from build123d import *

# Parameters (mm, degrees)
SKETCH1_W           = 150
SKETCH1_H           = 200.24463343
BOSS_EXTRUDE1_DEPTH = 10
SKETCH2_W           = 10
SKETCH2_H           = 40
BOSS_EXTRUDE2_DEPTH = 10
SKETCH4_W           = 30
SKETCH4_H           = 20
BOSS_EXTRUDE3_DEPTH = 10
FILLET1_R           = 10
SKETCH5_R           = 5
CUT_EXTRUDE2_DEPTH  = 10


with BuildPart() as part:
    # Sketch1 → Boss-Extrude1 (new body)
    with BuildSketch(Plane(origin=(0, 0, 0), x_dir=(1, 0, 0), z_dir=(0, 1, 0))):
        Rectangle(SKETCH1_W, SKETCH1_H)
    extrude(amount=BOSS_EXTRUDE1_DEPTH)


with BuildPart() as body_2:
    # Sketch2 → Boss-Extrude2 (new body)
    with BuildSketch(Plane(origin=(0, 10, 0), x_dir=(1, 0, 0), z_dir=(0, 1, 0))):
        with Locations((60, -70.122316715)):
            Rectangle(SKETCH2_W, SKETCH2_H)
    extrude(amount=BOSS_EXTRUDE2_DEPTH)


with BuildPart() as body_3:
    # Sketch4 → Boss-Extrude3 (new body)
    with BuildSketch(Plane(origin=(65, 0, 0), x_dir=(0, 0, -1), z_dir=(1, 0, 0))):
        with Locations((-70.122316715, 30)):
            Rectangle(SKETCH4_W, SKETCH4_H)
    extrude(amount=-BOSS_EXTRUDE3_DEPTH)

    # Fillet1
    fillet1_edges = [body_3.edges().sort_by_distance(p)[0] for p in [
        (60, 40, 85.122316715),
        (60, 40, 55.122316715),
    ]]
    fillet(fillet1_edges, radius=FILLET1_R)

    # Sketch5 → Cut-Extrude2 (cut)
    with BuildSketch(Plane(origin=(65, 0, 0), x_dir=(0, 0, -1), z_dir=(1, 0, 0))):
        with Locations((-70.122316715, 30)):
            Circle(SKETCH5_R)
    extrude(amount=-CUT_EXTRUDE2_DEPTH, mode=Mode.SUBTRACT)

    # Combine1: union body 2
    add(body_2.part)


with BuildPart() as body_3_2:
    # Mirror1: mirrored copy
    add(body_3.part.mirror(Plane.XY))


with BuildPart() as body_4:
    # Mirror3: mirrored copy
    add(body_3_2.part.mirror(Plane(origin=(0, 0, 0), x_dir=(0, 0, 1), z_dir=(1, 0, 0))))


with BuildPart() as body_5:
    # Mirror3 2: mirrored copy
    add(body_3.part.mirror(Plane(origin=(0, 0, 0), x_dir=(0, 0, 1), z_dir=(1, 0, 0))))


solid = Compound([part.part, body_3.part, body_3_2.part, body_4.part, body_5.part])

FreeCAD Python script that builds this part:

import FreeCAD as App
import Part
import Sketcher
from FreeCAD import Vector
Q = App.Units.Quantity


def edges_at(feature, points):
    """Names of the edges that pass closest to the given points."""
    edges = feature.Shape.Edges
    near = lambda p: min(range(len(edges)), key=lambda i: edges[i].distToShape(Part.Vertex(*p))[0])
    return sorted({f"Edge{near(p) + 1}" for p in points})

doc = App.newDocument("Part")
params = doc.addObject("Spreadsheet::Sheet", "Params")
for row, (alias, value) in enumerate([
    ("sketch1_width", "150 mm"),
    ("pad1_length", "10 mm"),
    ("sketch2_width", "10 mm"),
    ("sketch2_height", "40 mm"),
    ("pad2_length", "10 mm"),
    ("sketch3_width", "20 mm"),
    ("sketch3_height", "30 mm"),
    ("pad3_length", "10 mm"),
    ("fillet_radius", "10 mm"),
    ("sketch4_diameter", "10 mm"),
    ("pocket1_length", "10 mm"),
], start=1):
    params.set(f"A{row}", alias)
    params.set(f"B{row}", "=" + value)
    params.setAlias(f"B{row}", alias)

body = doc.addObject("PartDesign::Body", "Body")

# Sketch on XZ plane
sketch1 = body.newObject("Sketcher::SketchObject", "Sketch")
sketch1.AttachmentSupport = (doc.getObject("XZ_Plane"), [""])
sketch1.MapMode = "FlatFace"
sketch1.addGeometry([
    Part.LineSegment(Vector(-75, -100.122317, 0), Vector(-75, 100.122317, 0)),
    Part.LineSegment(Vector(-75, 100.122317, 0), Vector(75, 100.122317, 0)),
    Part.LineSegment(Vector(75, 100.122317, 0), Vector(75, -100.122317, 0)),
    Part.LineSegment(Vector(75, -100.122317, 0), Vector(-75, -100.122317, 0)),
], False)
sketch1.addConstraint([
    Sketcher.Constraint("Coincident", 0, 2, 1, 1),
    Sketcher.Constraint("Coincident", 1, 2, 2, 1),
    Sketcher.Constraint("Coincident", 2, 2, 3, 1),
    Sketcher.Constraint("Coincident", 3, 2, 0, 1),
    Sketcher.Constraint("Vertical", 0),
    Sketcher.Constraint("Horizontal", 1),
    Sketcher.Constraint("Vertical", 2),
    Sketcher.Constraint("Horizontal", 3),
    Sketcher.Constraint("Symmetric", 0, 2, 2, 2, -1, 1),
    Sketcher.Constraint("DistanceX", 1, 1, 1, 2, Q("150 mm")),
    Sketcher.Constraint("DistanceY", 0, 1, 0, 2, Q("200.244633 mm")),
])
sketch1.setExpression("Constraints[9]", "Params.sketch1_width")
pad1 = body.newObject("PartDesign::Pad", "Pad")
pad1.Profile = sketch1
pad1.setExpression("Length", "Params.pad1_length")
pad1.Reversed = True
body2 = doc.addObject("PartDesign::Body", "Body001")

# Sketch on XZ plane
sketch2 = body2.newObject("Sketcher::SketchObject", "Sketch001")
sketch2.AttachmentSupport = (doc.getObject("XZ_Plane001"), [""])
sketch2.MapMode = "FlatFace"
sketch2.AttachmentOffset = App.Placement(Vector(0, 0, -10), App.Rotation())
sketch2.addGeometry([
    Part.LineSegment(Vector(55, 50.122317, 0), Vector(55, 90.122317, 0)),
    Part.LineSegment(Vector(55, 90.122317, 0), Vector(65, 90.122317, 0)),
    Part.LineSegment(Vector(65, 90.122317, 0), Vector(65, 50.122317, 0)),
    Part.LineSegment(Vector(65, 50.122317, 0), Vector(55, 50.122317, 0)),
], False)
sketch2.addConstraint([
    Sketcher.Constraint("Coincident", 0, 2, 1, 1),
    Sketcher.Constraint("Coincident", 1, 2, 2, 1),
    Sketcher.Constraint("Coincident", 2, 2, 3, 1),
    Sketcher.Constraint("Coincident", 3, 2, 0, 1),
    Sketcher.Constraint("Vertical", 0),
    Sketcher.Constraint("Horizontal", 1),
    Sketcher.Constraint("Vertical", 2),
    Sketcher.Constraint("Horizontal", 3),
    Sketcher.Constraint("DistanceX", 1, 1, 1, 2, Q("10 mm")),
    Sketcher.Constraint("DistanceY", 0, 1, 0, 2, Q("40 mm")),
    Sketcher.Constraint("DistanceX", -1, 1, 0, 2, Q("55 mm")),
    Sketcher.Constraint("DistanceY", -1, 1, 0, 2, Q("90.122317 mm")),
])
sketch2.setExpression("Constraints[8]", "Params.sketch2_width")
sketch2.setExpression("Constraints[9]", "Params.sketch2_height")
pad2 = body2.newObject("PartDesign::Pad", "Pad001")
pad2.Profile = sketch2
pad2.setExpression("Length", "Params.pad2_length")
pad2.Reversed = True
body3 = doc.addObject("PartDesign::Body", "Body002")

# Sketch on YZ plane
sketch3 = body3.newObject("Sketcher::SketchObject", "Sketch002")
sketch3.AttachmentSupport = (doc.getObject("YZ_Plane002"), [""])
sketch3.MapMode = "FlatFace"
sketch3.AttachmentOffset = App.Placement(Vector(0, 0, 65), App.Rotation())
sketch3.addGeometry([
    Part.LineSegment(Vector(40, 85.122317, 0), Vector(20, 85.122317, 0)),
    Part.LineSegment(Vector(20, 85.122317, 0), Vector(20, 55.122317, 0)),
    Part.LineSegment(Vector(20, 55.122317, 0), Vector(40, 55.122317, 0)),
    Part.LineSegment(Vector(40, 55.122317, 0), Vector(40, 85.122317, 0)),
], False)
sketch3.addConstraint([
    Sketcher.Constraint("Coincident", 0, 2, 1, 1),
    Sketcher.Constraint("Coincident", 1, 2, 2, 1),
    Sketcher.Constraint("Coincident", 2, 2, 3, 1),
    Sketcher.Constraint("Coincident", 3, 2, 0, 1),
    Sketcher.Constraint("Horizontal", 0),
    Sketcher.Constraint("Vertical", 1),
    Sketcher.Constraint("Horizontal", 2),
    Sketcher.Constraint("Vertical", 3),
    Sketcher.Constraint("DistanceX", 0, 2, 0, 1, Q("20 mm")),
    Sketcher.Constraint("DistanceY", 1, 2, 1, 1, Q("30 mm")),
    Sketcher.Constraint("DistanceX", -1, 1, 0, 2, Q("20 mm")),
    Sketcher.Constraint("DistanceY", -1, 1, 0, 2, Q("85.122317 mm")),
])
sketch3.setExpression("Constraints[8]", "Params.sketch3_width")
sketch3.setExpression("Constraints[9]", "Params.sketch3_height")
pad3 = body3.newObject("PartDesign::Pad", "Pad002")
pad3.Profile = sketch3
pad3.setExpression("Length", "Params.pad3_length")
pad3.Reversed = True
doc.recompute()

fillet = body3.newObject("PartDesign::Fillet", "Fillet")
fillet.Base = (pad3, edges_at(pad3, [(60, 40, 85.122), (60, 40, 55.122)]))
fillet.setExpression("Radius", "Params.fillet_radius")

# Sketch on YZ plane
sketch4 = body3.newObject("Sketcher::SketchObject", "Sketch003")
sketch4.AttachmentSupport = (doc.getObject("YZ_Plane002"), [""])
sketch4.MapMode = "FlatFace"
sketch4.AttachmentOffset = App.Placement(Vector(0, 0, 65), App.Rotation())
sketch4.addGeometry(Part.Circle(Vector(30, 70.122317, 0), Vector(0, 0, 1), 5), False)
sketch4.addConstraint([
    Sketcher.Constraint("Diameter", 0, Q("10 mm")),
    Sketcher.Constraint("DistanceX", -1, 1, 0, 3, Q("30 mm")),
    Sketcher.Constraint("DistanceY", -1, 1, 0, 3, Q("70.122317 mm")),
])
sketch4.setExpression("Constraints[0]", "Params.sketch4_diameter")
pocket1 = body3.newObject("PartDesign::Pocket", "Pocket")
pocket1.Profile = sketch4
pocket1.setExpression("Length", "Params.pocket1_length")
doc.recompute()

boolean = body3.newObject("PartDesign::Boolean", "Boolean")
boolean.Type = "Fuse"
boolean.addObjects([body2])
body4 = doc.addObject("PartDesign::Body", "Body003")
doc.recompute()

mirroring = doc.addObject("Part::Mirroring", "Mirroring")
mirroring.Source = body3
mirroring.Base = Vector(0, 0, 0)
mirroring.Normal = Vector(0, 0, 1)
body4.BaseFeature = mirroring
doc.recompute()
body5 = doc.addObject("PartDesign::Body", "Body004")
doc.recompute()

mirroring2 = doc.addObject("Part::Mirroring", "Mirroring001")
mirroring2.Source = body4
mirroring2.Base = Vector(0, 0, 0)
mirroring2.Normal = Vector(1, 0, 0)
body5.BaseFeature = mirroring2
doc.recompute()
body6 = doc.addObject("PartDesign::Body", "Body005")
doc.recompute()

mirroring3 = doc.addObject("Part::Mirroring", "Mirroring002")
mirroring3.Source = body3
mirroring3.Base = Vector(0, 0, 0)
mirroring3.Normal = Vector(1, 0, 0)
body6.BaseFeature = mirroring3
doc.recompute()
mirroring.Visibility = False
mirroring2.Visibility = False
mirroring3.Visibility = False

doc.recompute()
